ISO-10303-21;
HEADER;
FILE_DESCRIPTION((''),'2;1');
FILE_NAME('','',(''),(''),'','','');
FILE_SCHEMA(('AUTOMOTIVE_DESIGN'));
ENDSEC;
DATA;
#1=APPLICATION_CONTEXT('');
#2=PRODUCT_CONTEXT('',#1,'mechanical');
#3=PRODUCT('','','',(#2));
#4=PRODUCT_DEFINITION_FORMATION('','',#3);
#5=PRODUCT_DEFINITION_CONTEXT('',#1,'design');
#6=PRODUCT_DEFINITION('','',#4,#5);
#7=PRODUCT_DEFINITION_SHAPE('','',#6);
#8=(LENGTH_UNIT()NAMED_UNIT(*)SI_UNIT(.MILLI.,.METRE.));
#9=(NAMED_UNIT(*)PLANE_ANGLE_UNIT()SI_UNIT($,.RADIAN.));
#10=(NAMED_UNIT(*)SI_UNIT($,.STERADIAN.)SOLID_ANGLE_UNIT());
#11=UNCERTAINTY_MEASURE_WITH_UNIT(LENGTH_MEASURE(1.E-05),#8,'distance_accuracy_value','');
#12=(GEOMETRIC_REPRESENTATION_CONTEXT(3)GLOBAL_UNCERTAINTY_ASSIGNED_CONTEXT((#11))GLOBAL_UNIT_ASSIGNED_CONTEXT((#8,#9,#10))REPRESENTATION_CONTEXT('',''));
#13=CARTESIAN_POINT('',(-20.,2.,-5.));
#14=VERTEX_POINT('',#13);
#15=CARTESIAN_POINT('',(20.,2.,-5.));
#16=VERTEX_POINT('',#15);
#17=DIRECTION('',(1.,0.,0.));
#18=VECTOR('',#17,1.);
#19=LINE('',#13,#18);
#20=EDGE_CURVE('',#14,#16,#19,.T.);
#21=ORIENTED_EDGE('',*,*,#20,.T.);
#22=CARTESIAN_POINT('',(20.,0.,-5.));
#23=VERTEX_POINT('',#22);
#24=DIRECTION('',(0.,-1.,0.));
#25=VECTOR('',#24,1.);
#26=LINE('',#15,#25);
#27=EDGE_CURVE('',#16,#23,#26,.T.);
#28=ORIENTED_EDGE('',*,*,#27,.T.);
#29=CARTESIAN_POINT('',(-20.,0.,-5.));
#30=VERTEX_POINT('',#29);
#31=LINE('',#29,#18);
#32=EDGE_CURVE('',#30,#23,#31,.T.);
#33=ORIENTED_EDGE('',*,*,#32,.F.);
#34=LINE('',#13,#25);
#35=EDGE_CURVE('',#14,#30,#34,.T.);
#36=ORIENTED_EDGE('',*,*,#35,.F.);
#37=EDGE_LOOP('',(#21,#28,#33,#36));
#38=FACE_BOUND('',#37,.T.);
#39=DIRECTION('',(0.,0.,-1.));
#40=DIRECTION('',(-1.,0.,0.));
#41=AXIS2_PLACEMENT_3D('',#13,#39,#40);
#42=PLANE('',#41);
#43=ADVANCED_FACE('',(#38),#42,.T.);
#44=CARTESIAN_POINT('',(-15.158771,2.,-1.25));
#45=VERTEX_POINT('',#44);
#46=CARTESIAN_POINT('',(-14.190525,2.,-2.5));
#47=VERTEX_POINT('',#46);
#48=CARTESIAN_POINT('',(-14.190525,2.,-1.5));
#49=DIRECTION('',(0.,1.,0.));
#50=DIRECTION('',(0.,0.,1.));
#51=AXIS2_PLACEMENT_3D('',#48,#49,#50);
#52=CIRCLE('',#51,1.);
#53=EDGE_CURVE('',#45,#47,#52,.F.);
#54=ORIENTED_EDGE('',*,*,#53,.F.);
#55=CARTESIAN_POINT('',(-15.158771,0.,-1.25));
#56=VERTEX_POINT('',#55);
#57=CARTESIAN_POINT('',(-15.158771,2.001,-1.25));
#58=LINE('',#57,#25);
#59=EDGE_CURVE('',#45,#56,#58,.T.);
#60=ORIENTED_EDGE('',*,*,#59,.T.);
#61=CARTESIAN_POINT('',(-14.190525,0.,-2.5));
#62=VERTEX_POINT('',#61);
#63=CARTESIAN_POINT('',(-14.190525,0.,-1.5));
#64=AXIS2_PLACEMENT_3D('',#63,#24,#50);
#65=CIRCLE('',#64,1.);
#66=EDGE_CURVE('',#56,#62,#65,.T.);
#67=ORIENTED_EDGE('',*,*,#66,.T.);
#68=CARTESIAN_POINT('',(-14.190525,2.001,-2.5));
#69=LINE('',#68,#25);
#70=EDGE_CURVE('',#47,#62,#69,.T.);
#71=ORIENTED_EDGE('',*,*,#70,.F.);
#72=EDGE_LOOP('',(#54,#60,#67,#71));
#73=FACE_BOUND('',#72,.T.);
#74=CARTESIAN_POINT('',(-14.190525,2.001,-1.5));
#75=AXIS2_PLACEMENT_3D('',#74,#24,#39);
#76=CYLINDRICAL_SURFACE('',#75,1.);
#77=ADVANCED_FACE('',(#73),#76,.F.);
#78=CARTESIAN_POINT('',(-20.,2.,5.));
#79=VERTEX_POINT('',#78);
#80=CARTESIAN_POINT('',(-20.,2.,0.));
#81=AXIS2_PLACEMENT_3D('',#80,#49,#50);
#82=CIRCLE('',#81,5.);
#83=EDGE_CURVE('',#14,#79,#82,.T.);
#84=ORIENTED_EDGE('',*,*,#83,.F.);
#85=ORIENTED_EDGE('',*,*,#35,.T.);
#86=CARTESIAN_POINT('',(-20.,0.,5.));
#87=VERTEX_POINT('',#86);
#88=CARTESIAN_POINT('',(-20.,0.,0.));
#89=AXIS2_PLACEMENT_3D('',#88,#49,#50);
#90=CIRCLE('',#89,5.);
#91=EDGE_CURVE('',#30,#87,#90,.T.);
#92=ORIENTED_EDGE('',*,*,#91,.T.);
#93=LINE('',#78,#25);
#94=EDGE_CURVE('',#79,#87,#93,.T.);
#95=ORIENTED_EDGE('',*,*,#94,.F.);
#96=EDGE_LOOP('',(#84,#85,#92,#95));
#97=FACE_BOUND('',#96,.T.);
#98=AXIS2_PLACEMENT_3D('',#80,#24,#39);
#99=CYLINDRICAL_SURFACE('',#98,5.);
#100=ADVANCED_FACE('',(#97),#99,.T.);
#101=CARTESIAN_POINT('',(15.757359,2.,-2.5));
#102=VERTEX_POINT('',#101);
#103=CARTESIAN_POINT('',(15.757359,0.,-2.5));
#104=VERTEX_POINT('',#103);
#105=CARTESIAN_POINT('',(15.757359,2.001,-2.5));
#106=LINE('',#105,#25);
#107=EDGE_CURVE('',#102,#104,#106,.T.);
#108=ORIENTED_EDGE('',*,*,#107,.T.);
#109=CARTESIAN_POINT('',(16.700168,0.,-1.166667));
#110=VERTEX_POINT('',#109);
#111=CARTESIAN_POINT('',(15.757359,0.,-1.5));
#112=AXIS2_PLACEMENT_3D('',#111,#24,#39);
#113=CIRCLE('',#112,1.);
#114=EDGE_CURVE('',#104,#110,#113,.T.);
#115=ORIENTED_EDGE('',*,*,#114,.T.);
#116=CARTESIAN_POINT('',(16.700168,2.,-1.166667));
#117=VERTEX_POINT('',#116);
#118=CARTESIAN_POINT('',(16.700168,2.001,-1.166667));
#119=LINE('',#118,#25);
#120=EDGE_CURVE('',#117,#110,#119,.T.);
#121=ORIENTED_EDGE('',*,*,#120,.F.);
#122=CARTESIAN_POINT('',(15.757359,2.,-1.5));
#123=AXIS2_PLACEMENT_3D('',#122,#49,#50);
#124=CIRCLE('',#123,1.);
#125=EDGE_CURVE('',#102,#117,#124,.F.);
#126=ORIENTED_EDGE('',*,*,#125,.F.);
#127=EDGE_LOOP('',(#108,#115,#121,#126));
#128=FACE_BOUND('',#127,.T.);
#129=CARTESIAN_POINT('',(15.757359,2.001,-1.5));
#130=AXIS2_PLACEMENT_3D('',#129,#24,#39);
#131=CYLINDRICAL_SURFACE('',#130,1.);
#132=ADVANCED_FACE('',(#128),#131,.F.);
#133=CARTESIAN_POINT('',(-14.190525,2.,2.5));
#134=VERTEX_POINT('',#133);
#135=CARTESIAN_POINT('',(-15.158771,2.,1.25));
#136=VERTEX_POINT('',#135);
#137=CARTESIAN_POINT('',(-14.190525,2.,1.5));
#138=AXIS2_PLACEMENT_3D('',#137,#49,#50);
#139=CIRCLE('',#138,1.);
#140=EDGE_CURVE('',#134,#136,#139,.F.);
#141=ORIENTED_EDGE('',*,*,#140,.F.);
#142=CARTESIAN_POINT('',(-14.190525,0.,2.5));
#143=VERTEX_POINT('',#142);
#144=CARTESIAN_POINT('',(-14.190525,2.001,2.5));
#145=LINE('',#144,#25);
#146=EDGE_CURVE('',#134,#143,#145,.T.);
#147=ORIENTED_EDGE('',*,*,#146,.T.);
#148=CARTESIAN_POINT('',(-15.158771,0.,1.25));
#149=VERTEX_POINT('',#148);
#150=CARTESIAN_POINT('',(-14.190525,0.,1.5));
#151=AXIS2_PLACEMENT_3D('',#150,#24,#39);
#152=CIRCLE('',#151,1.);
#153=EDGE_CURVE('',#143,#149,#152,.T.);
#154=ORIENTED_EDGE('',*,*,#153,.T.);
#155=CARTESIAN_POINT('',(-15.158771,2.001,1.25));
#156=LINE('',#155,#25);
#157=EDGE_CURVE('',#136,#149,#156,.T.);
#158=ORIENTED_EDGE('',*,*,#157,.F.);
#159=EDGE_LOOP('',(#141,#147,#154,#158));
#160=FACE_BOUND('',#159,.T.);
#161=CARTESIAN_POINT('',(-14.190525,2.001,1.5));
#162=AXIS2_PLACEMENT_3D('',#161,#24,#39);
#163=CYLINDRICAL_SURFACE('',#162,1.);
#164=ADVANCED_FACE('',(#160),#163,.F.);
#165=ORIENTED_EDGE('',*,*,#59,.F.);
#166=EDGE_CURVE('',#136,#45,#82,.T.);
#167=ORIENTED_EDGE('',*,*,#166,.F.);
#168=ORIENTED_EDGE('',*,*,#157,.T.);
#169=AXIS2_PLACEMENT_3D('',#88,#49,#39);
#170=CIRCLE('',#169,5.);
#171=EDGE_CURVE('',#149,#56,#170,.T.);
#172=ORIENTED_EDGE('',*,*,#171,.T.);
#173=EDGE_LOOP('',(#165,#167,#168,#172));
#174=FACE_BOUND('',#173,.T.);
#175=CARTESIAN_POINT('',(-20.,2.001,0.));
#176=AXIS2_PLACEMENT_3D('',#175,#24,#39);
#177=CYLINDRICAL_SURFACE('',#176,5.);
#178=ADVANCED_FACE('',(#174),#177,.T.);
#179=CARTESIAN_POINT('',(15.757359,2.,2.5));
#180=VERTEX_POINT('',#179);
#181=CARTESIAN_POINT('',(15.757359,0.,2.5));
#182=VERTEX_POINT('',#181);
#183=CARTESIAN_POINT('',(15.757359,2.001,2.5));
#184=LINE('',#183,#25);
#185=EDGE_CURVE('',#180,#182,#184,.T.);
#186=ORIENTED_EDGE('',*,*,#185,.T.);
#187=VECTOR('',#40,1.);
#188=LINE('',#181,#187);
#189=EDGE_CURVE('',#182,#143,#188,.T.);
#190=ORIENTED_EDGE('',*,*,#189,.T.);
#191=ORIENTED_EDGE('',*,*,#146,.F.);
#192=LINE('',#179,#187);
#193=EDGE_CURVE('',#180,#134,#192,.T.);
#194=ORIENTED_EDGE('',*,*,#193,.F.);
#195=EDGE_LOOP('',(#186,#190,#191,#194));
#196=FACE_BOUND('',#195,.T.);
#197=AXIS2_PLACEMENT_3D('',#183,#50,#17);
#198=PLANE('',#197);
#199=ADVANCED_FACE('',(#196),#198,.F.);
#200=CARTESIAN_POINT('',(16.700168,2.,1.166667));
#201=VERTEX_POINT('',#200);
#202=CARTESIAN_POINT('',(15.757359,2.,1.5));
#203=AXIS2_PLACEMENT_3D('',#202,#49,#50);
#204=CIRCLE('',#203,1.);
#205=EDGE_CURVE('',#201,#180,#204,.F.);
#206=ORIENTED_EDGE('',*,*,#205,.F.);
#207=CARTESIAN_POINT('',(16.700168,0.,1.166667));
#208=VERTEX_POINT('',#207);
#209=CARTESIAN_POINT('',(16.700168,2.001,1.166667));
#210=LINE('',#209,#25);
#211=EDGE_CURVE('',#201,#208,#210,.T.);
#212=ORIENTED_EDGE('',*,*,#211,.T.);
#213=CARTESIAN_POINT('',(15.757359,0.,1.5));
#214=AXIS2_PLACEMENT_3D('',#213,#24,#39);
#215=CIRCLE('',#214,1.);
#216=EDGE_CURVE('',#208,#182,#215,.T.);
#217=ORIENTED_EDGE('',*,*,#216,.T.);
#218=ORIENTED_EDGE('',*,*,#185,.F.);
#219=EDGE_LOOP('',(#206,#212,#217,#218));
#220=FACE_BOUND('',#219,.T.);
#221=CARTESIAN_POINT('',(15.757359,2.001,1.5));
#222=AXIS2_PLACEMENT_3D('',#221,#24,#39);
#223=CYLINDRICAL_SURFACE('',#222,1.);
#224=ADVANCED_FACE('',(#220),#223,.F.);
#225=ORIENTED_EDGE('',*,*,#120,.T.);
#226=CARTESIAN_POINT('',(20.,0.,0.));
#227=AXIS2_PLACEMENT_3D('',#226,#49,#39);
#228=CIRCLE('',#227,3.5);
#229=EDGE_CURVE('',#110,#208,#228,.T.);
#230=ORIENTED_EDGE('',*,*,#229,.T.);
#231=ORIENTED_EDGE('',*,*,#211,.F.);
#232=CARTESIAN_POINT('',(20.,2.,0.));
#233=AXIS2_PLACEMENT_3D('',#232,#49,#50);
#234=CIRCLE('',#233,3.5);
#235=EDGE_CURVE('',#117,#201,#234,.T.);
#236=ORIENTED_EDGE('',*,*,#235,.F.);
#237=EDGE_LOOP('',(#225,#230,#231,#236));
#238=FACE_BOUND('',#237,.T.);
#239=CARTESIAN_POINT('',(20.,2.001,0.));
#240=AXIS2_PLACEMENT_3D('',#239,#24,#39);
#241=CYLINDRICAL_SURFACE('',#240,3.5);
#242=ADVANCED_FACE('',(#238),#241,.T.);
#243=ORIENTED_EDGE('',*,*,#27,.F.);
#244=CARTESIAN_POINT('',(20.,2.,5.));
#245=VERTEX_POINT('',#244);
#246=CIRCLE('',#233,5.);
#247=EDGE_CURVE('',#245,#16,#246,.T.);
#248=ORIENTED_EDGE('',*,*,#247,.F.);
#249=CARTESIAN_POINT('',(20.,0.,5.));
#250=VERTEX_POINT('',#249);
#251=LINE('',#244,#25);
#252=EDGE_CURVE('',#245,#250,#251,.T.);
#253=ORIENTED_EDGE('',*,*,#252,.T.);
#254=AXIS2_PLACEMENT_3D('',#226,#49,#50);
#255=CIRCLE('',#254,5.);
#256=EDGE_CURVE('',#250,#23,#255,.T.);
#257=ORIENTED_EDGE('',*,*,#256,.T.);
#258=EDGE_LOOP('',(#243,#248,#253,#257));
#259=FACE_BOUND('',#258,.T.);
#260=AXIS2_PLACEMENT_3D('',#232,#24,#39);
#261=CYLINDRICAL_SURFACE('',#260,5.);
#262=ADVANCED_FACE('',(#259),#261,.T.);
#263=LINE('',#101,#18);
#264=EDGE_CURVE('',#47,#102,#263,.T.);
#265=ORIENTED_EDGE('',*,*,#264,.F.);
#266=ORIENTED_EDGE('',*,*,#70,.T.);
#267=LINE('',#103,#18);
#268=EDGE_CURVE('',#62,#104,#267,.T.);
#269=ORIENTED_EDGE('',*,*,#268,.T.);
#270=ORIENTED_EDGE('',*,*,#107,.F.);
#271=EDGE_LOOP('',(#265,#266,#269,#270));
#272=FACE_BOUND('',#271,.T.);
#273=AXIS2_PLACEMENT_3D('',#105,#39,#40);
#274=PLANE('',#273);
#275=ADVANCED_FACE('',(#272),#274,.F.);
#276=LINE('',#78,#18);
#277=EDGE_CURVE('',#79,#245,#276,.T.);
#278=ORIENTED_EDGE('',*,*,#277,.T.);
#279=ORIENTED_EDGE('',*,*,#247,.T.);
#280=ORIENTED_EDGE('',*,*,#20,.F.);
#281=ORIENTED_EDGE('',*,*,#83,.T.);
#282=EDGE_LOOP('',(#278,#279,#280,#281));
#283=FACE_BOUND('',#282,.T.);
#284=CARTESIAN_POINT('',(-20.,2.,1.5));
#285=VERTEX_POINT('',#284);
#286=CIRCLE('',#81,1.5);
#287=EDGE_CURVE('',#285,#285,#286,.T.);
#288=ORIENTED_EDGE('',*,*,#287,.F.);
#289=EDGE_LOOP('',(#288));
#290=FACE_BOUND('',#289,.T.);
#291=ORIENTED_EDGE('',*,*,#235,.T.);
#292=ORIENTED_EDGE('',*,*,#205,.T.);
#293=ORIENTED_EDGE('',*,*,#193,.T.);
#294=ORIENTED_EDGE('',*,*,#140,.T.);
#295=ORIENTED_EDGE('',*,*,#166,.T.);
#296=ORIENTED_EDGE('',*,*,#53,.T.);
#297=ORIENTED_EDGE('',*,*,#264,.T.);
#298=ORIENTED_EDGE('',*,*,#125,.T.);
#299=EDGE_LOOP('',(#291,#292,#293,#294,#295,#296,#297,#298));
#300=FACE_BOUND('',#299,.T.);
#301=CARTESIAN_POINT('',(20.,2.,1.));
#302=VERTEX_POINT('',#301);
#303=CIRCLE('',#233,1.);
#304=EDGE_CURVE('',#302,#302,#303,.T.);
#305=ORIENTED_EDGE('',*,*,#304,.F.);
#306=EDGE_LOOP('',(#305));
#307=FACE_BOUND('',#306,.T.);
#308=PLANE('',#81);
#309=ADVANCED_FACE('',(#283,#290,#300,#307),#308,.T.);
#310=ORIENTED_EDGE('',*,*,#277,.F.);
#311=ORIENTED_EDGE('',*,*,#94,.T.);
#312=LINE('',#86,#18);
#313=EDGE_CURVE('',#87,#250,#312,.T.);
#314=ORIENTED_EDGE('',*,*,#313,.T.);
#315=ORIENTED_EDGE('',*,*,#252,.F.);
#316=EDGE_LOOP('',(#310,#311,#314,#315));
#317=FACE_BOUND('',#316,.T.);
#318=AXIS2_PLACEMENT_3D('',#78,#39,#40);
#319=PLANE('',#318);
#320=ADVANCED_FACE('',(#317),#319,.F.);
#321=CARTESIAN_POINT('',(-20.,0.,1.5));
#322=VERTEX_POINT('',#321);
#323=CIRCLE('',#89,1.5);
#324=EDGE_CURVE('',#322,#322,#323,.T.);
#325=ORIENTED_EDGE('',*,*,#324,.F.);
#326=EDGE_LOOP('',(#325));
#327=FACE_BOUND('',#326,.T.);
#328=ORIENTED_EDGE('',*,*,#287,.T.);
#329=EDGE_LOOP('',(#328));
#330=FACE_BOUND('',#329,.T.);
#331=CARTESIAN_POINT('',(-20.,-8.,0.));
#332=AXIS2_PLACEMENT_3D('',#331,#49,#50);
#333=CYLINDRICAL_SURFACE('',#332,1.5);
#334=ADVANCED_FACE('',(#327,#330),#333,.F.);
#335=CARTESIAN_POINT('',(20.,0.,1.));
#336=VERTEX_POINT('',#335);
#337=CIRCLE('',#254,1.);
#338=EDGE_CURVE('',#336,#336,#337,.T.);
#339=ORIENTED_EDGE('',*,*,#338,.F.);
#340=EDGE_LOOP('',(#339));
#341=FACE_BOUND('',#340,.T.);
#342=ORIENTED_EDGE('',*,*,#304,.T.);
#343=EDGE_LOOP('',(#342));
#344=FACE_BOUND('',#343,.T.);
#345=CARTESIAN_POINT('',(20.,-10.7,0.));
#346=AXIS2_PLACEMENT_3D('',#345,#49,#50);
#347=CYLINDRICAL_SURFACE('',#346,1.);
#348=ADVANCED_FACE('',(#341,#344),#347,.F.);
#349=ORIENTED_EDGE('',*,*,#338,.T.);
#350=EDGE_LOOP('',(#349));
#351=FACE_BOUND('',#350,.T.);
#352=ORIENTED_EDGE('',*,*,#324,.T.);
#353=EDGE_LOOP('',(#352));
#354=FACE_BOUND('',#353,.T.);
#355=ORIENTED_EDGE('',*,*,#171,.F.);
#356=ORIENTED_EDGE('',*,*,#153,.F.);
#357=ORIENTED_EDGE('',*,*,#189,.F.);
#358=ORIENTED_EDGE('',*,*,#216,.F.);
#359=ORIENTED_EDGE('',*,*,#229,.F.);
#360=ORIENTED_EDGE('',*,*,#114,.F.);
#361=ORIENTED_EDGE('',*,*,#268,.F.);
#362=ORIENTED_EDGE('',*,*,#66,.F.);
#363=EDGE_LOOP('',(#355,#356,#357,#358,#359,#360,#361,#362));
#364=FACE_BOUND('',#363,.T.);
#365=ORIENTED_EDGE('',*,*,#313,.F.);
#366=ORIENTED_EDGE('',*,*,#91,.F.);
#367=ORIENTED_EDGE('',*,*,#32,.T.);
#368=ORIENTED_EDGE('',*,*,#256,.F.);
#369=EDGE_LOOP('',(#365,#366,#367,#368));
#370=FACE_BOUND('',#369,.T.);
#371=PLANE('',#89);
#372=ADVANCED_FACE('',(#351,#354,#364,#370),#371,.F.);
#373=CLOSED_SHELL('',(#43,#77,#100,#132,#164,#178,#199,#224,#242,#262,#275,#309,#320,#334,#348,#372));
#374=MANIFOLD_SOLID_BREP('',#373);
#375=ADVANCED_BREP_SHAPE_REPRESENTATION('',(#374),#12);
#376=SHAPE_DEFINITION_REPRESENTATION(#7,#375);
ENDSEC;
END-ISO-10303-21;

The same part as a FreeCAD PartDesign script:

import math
import FreeCAD as App
import Part
import Sketcher

V = App.Vector
Q = App.Units.Quantity

doc = App.newDocument("Part")
body = doc.addObject("PartDesign::Body", "Body")

# Sketch on XZ plane
sketch1 = body.newObject("Sketcher::SketchObject", "Sketch")
sketch1.AttachmentSupport = (doc.getObject("XZ_Plane"), [""])
sketch1.MapMode = "FlatFace"
sketch1.addGeometry([
    Part.LineSegment(V(20, -5, 0), V(-20, -5, 0)),
    Part.ArcOfCircle(Part.Circle(V(-20, 0, 0), V(0, 0, 1), 5), math.radians(90), math.radians(270)),
    Part.LineSegment(V(-20, 5, 0), V(20, 5, 0)),
    Part.ArcOfCircle(Part.Circle(V(20, 0, 0), V(0, 0, 1), 5), math.radians(-90), math.radians(90)),
], False)
sketch1.addConstraint([
    Sketcher.Constraint("Tangent", 0, 2, 1, 2),
    Sketcher.Constraint("Tangent", 1, 1, 2, 1),
    Sketcher.Constraint("Tangent", 2, 2, 3, 2),
    Sketcher.Constraint("Tangent", 3, 1, 0, 1),
    Sketcher.Constraint("Horizontal", 0),
    Sketcher.Constraint("Horizontal", 2),
    Sketcher.Constraint("Symmetric", 1, 3, 3, 3, -1, 1),
    Sketcher.Constraint("Radius", 1, Q("5 mm")),
    Sketcher.Constraint("DistanceX", 0, 2, 0, 1, Q("40 mm")),
])
pad1 = body.newObject("PartDesign::Pad", "Pad")
pad1.Profile = sketch1
pad1.Length = 2
pad1.Reversed = True

# Sketch on XZ plane
sketch2 = body.newObject("Sketcher::SketchObject", "Sketch001")
sketch2.AttachmentSupport = (doc.getObject("XZ_Plane"), [""])
sketch2.MapMode = "FlatFace"
sketch2.AttachmentOffset = App.Placement(V(0, 0, -2), App.Rotation())
sketch2.addGeometry(Part.Circle(V(20, 0, 0), V(0, 0, 1), 1), False)
sketch2.addConstraint([
    Sketcher.Constraint("PointOnObject", 0, 3, -1),
    Sketcher.Constraint("Diameter", 0, Q("2 mm")),
    Sketcher.Constraint("DistanceX", -1, 1, 0, 3, Q("20 mm")),
])
pocket1 = body.newObject("PartDesign::Pocket", "Pocket")
pocket1.Profile = sketch2
pocket1.Length = 12.7
pocket1.Reversed = True

# Sketch on XZ plane
sketch3 = body.newObject("Sketcher::SketchObject", "Sketch002")
sketch3.AttachmentSupport = (doc.getObject("XZ_Plane"), [""])
sketch3.MapMode = "FlatFace"
sketch3.AttachmentOffset = App.Placement(V(0, 0, -2), App.Rotation())
sketch3.addGeometry(Part.Circle(V(-20, 0, 0), V(0, 0, 1), 1.5), False)
sketch3.addConstraint([
    Sketcher.Constraint("PointOnObject", 0, 3, -1),
    Sketcher.Constraint("Diameter", 0, Q("3 mm")),
    Sketcher.Constraint("DistanceX", 0, 3, -1, 1, Q("20 mm")),
])
pocket2 = body.newObject("PartDesign::Pocket", "Pocket001")
pocket2.Profile = sketch3
pocket2.Length = 10
pocket2.Reversed = True

# Sketch on XZ plane
sketch4 = body.newObject("Sketcher::SketchObject", "Sketch003")
sketch4.AttachmentSupport = (doc.getObject("XZ_Plane"), [""])
sketch4.MapMode = "FlatFace"
sketch4.addGeometry([
    Part.LineSegment(V(-14.2, -2.5, 0), V(15.8, -2.5, 0)),  # 0
    Part.ArcOfCircle(Part.Circle(V(15.8, -1.5, 0), V(0, 0, 1), 1), math.radians(-90), math.radians(19)),  # 1
    Part.ArcOfCircle(Part.Circle(V(20, 0, 0), V(0, 0, 1), 3.5), math.radians(161), math.radians(199)),  # 2
    Part.ArcOfCircle(Part.Circle(V(15.8, 1.5, 0), V(0, 0, 1), 1), math.radians(-19), math.radians(90)),  # 3
    Part.LineSegment(V(15.8, 2.5, 0), V(-14.2, 2.5, 0)),  # 4
    Part.ArcOfCircle(Part.Circle(V(-14.2, 1.5, 0), V(0, 0, 1), 1), math.radians(90), math.radians(194)),  # 5
    Part.ArcOfCircle(Part.Circle(V(-20, 0, 0), V(0, 0, 1), 5), math.radians(-14), math.radians(14)),  # 6
    Part.ArcOfCircle(Part.Circle(V(-14.2, -1.5, 0), V(0, 0, 1), 1), math.radians(166), math.radians(270)),  # 7
], False)
sketch4.addConstraint([
    Sketcher.Constraint("Tangent", 0, 2, 1, 1),
    Sketcher.Constraint("Tangent", 1, 2, 2, 2),
    Sketcher.Constraint("Tangent", 2, 1, 3, 1),
    Sketcher.Constraint("Tangent", 3, 2, 4, 1),
    Sketcher.Constraint("Tangent", 4, 2, 5, 1),
    Sketcher.Constraint("Tangent", 5, 2, 6, 2),
    Sketcher.Constraint("Tangent", 6, 1, 7, 1),
    Sketcher.Constraint("Tangent", 7, 2, 0, 1),
    Sketcher.Constraint("Horizontal", 0),
    Sketcher.Constraint("Horizontal", 4),
    Sketcher.Constraint("Equal", 1, 3),
    Sketcher.Constraint("Equal", 3, 5),
    Sketcher.Constraint("Equal", 5, 7),
    Sketcher.Constraint("Symmetric", 2, 3, 6, 3, -1, 1),
    Sketcher.Constraint("Symmetric", 1, 3, 3, 3, -1),
    Sketcher.Constraint("Radius", 1, Q("1 mm")),
    Sketcher.Constraint("Radius", 6, Q("5 mm")),
    Sketcher.Constraint("Radius", 2, Q("3.5 mm")),
    Sketcher.Constraint("DistanceX", -1, 1, 2, 3, Q("20 mm")),
    Sketcher.Constraint("DistanceY", 1, 3, 3, 3, Q("3 mm")),
])
pocket3 = body.newObject("PartDesign::Pocket", "Pocket002")
pocket3.Profile = sketch4
pocket3.Type = "UpToFirst"

doc.recompute()
